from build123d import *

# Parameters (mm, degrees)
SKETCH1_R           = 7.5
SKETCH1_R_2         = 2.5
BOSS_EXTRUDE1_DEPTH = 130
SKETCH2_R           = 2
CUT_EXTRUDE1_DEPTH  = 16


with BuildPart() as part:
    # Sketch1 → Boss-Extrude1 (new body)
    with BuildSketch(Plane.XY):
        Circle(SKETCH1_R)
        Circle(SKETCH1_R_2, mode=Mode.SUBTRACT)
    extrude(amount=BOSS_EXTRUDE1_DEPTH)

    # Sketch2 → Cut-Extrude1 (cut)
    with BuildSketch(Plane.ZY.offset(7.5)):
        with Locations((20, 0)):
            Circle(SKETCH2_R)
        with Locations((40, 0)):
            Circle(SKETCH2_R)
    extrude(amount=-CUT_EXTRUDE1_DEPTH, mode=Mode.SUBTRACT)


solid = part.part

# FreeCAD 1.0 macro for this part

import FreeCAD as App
import Part
import Sketcher
Q = App.Units.Quantity

doc = App.newDocument("Part")
body = doc.addObject("PartDesign::Body", "Body")

sketch1 = body.newObject("Sketcher::SketchObject", "Sketch")
sketch1.AttachmentSupport = (doc.getObject("XY_Plane"), [""])
sketch1.MapMode = "FlatFace"
sketch1.addGeometry(Part.Circle(App.Vector(0, 0, 0), App.Vector(0, 0, 1), 7.5), False)
sketch1.addGeometry(Part.Circle(App.Vector(0, 0, 0), App.Vector(0, 0, 1), 2.5), False)
sketch1.addConstraint(Sketcher.Constraint("Coincident", 0, 3, -1, 1))
sketch1.addConstraint(Sketcher.Constraint("Coincident", 1, 3, -1, 1))
sketch1.addConstraint(Sketcher.Constraint("Diameter", 0, Q("15 mm")))
sketch1.addConstraint(Sketcher.Constraint("Diameter", 1, Q("5 mm")))
pad1 = body.newObject("PartDesign::Pad", "Pad")
pad1.Profile = sketch1
pad1.Length = 130

sketch2 = body.newObject("Sketcher::SketchObject", "Sketch001")
sketch2.AttachmentSupport = (doc.getObject("YZ_Plane"), [""])
sketch2.MapMode = "FlatFace"
sketch2.AttachmentOffset = App.Placement(App.Vector(0, 0, -7.5), App.Rotation())
sketch2.addGeometry(Part.Circle(App.Vector(0, 20, 0), App.Vector(0, 0, 1), 2), False)
sketch2.addGeometry(Part.Circle(App.Vector(0, 40, 0), App.Vector(0, 0, 1), 2), False)
sketch2.addConstraint(Sketcher.Constraint("Equal", 0, 1))
sketch2.addConstraint(Sketcher.Constraint("PointOnObject", 0, 3, -2))
sketch2.addConstraint(Sketcher.Constraint("PointOnObject", 1, 3, -2))
sketch2.addConstraint(Sketcher.Constraint("Diameter", 0, Q("4 mm")))
sketch2.addConstraint(Sketcher.Constraint("DistanceY", -1, 1, 0, 3, Q("20 mm")))
sketch2.addConstraint(Sketcher.Constraint("DistanceY", -1, 1, 1, 3, Q("40 mm")))
pocket1 = body.newObject("PartDesign::Pocket", "Pocket")
pocket1.Profile = sketch2
pocket1.Length = 16
pocket1.Reversed = True

doc.recompute()
